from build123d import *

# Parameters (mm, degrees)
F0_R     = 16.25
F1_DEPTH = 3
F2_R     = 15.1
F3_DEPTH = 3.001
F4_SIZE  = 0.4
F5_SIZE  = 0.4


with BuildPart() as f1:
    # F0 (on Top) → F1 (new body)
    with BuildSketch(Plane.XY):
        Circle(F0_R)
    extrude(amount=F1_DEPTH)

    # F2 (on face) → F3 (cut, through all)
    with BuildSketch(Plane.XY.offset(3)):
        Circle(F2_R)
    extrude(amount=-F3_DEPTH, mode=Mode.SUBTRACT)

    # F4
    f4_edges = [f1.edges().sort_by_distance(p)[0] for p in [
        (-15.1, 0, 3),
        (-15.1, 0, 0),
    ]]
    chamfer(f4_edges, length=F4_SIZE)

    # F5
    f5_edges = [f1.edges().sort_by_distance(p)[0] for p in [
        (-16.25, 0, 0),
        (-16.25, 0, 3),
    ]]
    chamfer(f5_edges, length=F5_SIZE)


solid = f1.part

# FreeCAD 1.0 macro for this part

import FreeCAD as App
import Part
import Sketcher

V = App.Vector
Q = App.Units.Quantity


def edges_at(feature, points):
    """Names of the edges that pass closest to the given points."""
    edges = feature.Shape.Edges
    near = lambda p: min(range(len(edges)), key=lambda i: edges[i].distToShape(Part.Vertex(*p))[0])
    return sorted({f"Edge{near(p) + 1}" for p in points})

doc = App.newDocument("Part")
body = doc.addObject("PartDesign::Body", "Body")

# Sketch on XY plane
sketch1 = body.newObject("Sketcher::SketchObject", "Sketch")
sketch1.AttachmentSupport = (doc.getObject("XY_Plane"), [""])
sketch1.MapMode = "FlatFace"
sketch1.addGeometry(Part.Circle(V(0, 0, 0), V(0, 0, 1), 16), False)
sketch1.addConstraint([
    Sketcher.Constraint("Coincident", 0, 3, -1, 1),
    Sketcher.Constraint("Diameter", 0, Q("32.5 mm")),
])
pad1 = body.newObject("PartDesign::Pad", "Pad")
pad1.Profile = sketch1
pad1.Length = 3

# Sketch on XY plane
sketch2 = body.newObject("Sketcher::SketchObject", "Sketch001")
sketch2.AttachmentSupport = (doc.getObject("XY_Plane"), [""])
sketch2.MapMode = "FlatFace"
sketch2.AttachmentOffset = App.Placement(V(0, 0, 3), App.Rotation())
sketch2.addGeometry(Part.Circle(V(0, 0, 0), V(0, 0, 1), 15), False)
sketch2.addConstraint([
    Sketcher.Constraint("Coincident", 0, 3, -1, 1),
    Sketcher.Constraint("Diameter", 0, Q("30.2 mm")),
])
pocket1 = body.newObject("PartDesign::Pocket", "Pocket")
pocket1.Profile = sketch2
pocket1.Type = "ThroughAll"
doc.recompute()

chamfer = body.newObject("PartDesign::Chamfer", "Chamfer")
chamfer.Base = (pocket1, edges_at(pocket1, [(-15.1, 0, 3), (-15.1, 0, 0)]))
chamfer.Size = 0.4
doc.recompute()

chamfer2 = body.newObject("PartDesign::Chamfer", "Chamfer001")
chamfer2.Base = (chamfer, edges_at(chamfer, [(-16.25, 0, 0), (-16.25, 0, 3)]))
chamfer2.Size = 0.4

doc.recompute()
